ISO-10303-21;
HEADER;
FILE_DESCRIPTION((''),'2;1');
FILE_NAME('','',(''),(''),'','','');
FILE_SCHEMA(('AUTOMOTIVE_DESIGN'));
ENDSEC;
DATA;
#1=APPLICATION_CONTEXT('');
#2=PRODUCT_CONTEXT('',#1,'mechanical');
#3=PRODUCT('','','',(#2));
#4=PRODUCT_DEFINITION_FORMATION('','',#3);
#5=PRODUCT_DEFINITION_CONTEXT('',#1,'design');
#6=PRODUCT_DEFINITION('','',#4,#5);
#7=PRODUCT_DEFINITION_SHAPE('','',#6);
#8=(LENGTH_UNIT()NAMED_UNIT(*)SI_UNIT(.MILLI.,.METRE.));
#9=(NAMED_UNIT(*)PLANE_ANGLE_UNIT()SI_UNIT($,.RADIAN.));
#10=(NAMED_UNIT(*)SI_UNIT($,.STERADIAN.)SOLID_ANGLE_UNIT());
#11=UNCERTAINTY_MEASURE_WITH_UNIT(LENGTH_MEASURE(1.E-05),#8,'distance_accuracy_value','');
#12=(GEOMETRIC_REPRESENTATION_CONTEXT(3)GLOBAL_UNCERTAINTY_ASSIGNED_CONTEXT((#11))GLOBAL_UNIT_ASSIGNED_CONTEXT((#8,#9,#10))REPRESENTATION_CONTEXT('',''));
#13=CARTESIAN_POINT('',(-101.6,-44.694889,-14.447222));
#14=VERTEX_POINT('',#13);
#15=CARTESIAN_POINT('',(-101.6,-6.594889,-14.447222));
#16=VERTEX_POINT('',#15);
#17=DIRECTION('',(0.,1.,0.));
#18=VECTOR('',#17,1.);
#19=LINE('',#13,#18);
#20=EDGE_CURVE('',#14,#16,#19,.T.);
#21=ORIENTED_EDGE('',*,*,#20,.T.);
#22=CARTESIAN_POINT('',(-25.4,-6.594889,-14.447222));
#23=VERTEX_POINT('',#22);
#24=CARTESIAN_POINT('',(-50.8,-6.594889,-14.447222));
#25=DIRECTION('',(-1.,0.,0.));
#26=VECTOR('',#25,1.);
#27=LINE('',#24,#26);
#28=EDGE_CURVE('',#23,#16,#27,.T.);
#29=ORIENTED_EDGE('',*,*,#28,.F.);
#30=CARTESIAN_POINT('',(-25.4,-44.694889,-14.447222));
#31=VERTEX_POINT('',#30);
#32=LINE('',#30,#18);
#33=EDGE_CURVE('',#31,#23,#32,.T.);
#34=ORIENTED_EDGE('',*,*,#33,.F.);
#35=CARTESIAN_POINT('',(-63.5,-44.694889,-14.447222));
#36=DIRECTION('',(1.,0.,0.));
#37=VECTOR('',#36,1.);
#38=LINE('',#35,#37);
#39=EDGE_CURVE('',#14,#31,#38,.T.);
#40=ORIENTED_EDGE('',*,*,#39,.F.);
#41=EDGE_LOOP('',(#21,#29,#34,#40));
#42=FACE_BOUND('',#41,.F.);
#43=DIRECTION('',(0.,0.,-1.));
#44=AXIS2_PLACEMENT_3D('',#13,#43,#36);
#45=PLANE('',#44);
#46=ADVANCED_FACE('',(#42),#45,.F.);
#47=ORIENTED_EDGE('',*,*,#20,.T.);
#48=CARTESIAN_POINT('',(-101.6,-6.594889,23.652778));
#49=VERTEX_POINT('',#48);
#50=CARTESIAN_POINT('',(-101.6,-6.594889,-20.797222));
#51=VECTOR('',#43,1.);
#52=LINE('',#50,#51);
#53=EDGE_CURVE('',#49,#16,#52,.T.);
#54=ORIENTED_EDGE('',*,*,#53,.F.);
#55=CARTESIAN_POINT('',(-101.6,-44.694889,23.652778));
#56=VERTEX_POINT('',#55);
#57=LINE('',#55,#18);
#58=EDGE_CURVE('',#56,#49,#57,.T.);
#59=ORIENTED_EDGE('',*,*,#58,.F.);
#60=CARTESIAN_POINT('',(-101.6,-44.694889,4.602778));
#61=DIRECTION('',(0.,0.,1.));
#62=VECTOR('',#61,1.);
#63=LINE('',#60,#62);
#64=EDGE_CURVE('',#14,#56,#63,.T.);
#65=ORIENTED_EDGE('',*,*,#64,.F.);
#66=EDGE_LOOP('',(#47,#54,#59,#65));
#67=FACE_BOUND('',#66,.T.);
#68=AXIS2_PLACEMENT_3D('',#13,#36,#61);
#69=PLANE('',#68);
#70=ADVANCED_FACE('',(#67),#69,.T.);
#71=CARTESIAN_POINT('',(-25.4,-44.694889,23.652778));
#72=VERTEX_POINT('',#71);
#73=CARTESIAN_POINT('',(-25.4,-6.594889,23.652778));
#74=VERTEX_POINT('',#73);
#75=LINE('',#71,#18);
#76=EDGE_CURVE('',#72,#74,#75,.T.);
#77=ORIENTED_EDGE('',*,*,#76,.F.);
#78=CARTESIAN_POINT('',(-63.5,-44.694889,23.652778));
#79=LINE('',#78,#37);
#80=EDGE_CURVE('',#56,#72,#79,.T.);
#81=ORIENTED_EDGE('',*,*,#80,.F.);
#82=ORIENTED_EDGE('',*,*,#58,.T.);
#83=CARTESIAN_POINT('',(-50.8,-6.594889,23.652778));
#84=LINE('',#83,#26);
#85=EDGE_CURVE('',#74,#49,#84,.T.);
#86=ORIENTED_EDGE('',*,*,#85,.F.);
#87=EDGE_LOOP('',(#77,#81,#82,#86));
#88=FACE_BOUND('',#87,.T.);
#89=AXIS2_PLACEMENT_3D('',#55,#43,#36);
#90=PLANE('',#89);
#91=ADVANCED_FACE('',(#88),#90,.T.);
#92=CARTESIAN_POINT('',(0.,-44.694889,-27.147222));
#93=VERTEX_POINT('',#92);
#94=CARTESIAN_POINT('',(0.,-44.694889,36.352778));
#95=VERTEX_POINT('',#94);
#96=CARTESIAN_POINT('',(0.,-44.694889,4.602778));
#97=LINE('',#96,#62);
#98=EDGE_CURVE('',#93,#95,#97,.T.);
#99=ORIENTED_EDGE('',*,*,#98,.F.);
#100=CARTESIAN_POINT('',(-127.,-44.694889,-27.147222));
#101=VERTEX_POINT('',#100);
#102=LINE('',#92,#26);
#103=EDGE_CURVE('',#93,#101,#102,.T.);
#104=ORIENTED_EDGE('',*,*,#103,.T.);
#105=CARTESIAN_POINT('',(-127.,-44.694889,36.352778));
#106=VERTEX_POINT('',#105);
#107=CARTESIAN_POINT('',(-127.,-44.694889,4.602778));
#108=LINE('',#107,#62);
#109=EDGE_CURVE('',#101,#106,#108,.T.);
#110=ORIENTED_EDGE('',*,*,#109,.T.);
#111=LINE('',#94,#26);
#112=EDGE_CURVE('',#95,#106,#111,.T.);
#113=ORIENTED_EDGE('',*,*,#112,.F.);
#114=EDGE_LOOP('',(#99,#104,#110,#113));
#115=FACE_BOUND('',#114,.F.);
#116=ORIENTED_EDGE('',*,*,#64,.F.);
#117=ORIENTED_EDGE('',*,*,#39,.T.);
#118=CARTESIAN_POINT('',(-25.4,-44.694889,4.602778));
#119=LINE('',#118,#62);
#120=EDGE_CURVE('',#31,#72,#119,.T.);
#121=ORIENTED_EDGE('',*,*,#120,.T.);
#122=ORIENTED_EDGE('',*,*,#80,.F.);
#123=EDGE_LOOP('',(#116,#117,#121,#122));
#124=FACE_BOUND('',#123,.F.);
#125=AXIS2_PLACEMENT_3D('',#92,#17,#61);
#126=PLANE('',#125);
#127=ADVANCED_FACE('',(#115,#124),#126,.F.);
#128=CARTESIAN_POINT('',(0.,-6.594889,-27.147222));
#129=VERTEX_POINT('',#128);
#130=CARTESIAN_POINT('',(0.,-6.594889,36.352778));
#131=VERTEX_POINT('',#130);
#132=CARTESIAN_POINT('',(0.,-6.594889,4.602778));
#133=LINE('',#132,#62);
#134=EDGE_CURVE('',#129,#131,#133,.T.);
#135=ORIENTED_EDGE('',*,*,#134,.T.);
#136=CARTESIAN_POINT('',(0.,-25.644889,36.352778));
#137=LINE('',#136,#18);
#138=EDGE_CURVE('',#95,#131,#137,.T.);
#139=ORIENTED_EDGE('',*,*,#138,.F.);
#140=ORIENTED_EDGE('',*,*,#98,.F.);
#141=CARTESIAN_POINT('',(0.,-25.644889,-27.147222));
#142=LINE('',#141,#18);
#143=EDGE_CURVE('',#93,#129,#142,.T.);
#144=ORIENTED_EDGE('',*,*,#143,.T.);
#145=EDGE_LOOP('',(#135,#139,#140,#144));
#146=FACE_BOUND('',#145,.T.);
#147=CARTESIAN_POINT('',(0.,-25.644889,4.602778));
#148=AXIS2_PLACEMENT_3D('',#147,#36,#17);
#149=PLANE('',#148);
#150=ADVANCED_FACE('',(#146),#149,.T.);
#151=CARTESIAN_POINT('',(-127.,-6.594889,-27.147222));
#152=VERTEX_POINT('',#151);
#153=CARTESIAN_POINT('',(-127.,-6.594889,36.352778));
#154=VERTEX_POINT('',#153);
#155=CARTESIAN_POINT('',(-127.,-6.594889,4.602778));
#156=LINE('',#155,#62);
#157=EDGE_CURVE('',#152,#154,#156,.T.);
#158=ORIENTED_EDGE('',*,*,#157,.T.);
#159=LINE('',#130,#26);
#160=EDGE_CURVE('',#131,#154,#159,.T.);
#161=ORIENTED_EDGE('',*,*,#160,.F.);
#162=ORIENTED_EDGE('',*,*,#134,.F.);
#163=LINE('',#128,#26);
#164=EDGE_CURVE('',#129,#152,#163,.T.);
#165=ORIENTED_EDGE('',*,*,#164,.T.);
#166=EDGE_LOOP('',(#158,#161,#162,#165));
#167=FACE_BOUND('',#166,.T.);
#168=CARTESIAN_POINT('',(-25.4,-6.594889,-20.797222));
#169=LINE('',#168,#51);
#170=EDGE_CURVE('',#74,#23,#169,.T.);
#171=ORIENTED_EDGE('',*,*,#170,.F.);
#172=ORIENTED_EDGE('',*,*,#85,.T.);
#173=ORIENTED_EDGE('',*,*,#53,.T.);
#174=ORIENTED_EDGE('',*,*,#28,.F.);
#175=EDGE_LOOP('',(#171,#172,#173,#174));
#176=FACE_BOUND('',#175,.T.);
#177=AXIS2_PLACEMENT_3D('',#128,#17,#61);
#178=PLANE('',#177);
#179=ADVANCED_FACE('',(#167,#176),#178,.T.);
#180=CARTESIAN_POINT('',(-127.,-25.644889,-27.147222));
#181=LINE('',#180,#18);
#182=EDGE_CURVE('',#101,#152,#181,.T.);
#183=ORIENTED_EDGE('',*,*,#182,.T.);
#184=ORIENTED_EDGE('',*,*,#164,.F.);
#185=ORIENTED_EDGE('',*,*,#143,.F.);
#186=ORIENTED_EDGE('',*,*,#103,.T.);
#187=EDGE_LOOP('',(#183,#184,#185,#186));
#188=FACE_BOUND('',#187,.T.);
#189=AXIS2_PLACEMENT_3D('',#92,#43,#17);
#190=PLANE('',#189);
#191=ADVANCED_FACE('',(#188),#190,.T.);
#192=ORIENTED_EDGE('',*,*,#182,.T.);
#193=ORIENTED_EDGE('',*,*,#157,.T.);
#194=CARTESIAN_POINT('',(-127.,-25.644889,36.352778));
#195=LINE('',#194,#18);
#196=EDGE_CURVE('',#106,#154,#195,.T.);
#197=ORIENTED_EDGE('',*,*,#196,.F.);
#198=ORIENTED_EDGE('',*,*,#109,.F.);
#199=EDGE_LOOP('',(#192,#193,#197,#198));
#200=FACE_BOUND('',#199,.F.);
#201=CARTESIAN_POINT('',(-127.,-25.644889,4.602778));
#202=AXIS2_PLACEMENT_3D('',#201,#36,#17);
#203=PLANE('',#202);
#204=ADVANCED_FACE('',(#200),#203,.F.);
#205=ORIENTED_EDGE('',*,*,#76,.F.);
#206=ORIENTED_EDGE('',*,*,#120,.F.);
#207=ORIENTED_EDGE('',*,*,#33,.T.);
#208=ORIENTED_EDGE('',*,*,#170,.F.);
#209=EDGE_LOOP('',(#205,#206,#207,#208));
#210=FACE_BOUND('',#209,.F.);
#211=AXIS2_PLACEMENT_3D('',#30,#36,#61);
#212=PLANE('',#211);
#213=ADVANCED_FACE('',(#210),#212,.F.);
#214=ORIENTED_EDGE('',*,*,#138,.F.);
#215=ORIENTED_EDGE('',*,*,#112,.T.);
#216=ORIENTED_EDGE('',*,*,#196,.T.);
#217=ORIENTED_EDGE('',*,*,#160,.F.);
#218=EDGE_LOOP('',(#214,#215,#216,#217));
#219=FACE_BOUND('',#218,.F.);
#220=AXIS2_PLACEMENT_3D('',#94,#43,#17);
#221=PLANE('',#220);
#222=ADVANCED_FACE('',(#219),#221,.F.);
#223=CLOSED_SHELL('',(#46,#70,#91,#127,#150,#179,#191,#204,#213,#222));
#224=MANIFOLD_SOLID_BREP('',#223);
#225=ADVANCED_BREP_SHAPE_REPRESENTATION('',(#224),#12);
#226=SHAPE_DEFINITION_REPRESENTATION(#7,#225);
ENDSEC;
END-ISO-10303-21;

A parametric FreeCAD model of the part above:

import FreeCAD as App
import Part
import Sketcher
from FreeCAD import Vector
Q = App.Units.Quantity

doc = App.newDocument("Part")
body = doc.addObject("PartDesign::Body", "Body")

# Sketch on YZ plane
sketch1 = body.newObject("Sketcher::SketchObject", "Sketch")
sketch1.AttachmentSupport = (doc.getObject("YZ_Plane"), [""])
sketch1.MapMode = "FlatFace"
sketch1.addGeometry(Part.LineSegment(Vector(-45, 36, 0), Vector(-45, -27, 0)), False)
sketch1.addGeometry(Part.LineSegment(Vector(-45, -27, 0), Vector(-7, -27, 0)), False)
sketch1.addGeometry(Part.LineSegment(Vector(-7, -27, 0), Vector(-7, 36, 0)), False)
sketch1.addGeometry(Part.LineSegment(Vector(-7, 36, 0), Vector(-45, 36, 0)), False)
sketch1.addConstraint(Sketcher.Constraint("Coincident", 0, 2, 1, 1))
sketch1.addConstraint(Sketcher.Constraint("Coincident", 1, 2, 2, 1))
sketch1.addConstraint(Sketcher.Constraint("Coincident", 2, 2, 3, 1))
sketch1.addConstraint(Sketcher.Constraint("Coincident", 3, 2, 0, 1))
sketch1.addConstraint(Sketcher.Constraint("Vertical", 0))
sketch1.addConstraint(Sketcher.Constraint("Horizontal", 1))
sketch1.addConstraint(Sketcher.Constraint("Vertical", 2))
sketch1.addConstraint(Sketcher.Constraint("Horizontal", 3))
sketch1.addConstraint(Sketcher.Constraint("DistanceX", 1, 1, 1, 2, Q("1.5 in")))
sketch1.addConstraint(Sketcher.Constraint("DistanceY", 0, 2, 0, 1, Q("2.5 in")))
sketch1.addConstraint(Sketcher.Constraint("DistanceX", 0, 2, -1, 1, Q("44.694889 mm")))
sketch1.addConstraint(Sketcher.Constraint("DistanceY", 0, 2, -1, 1, Q("27.147222 mm")))
pad1 = body.newObject("PartDesign::Pad", "Pad")
pad1.Profile = sketch1
pad1.Length = Q("5 in")
pad1.Reversed = True

# Sketch on XZ plane
sketch2 = body.newObject("Sketcher::SketchObject", "Sketch001")
sketch2.AttachmentSupport = (doc.getObject("XZ_Plane"), [""])
sketch2.MapMode = "FlatFace"
sketch2.AttachmentOffset = App.Placement(Vector(0, 0, 44.694889), App.Rotation())
sketch2.addGeometry(Part.LineSegment(Vector(-102, 24, 0), Vector(-102, -14, 0)), False)
sketch2.addGeometry(Part.LineSegment(Vector(-102, -14, 0), Vector(-25, -14, 0)), False)
sketch2.addGeometry(Part.LineSegment(Vector(-25, -14, 0), Vector(-25, 24, 0)), False)
sketch2.addGeometry(Part.LineSegment(Vector(-25, 24, 0), Vector(-102, 24, 0)), False)
sketch2.addConstraint(Sketcher.Constraint("Coincident", 0, 2, 1, 1))
sketch2.addConstraint(Sketcher.Constraint("Coincident", 1, 2, 2, 1))
sketch2.addConstraint(Sketcher.Constraint("Coincident", 2, 2, 3, 1))
sketch2.addConstraint(Sketcher.Constraint("Coincident", 3, 2, 0, 1))
sketch2.addConstraint(Sketcher.Constraint("Vertical", 0))
sketch2.addConstraint(Sketcher.Constraint("Horizontal", 1))
sketch2.addConstraint(Sketcher.Constraint("Vertical", 2))
sketch2.addConstraint(Sketcher.Constraint("Horizontal", 3))
sketch2.addConstraint(Sketcher.Constraint("DistanceX", 1, 1, 1, 2, Q("3 in")))
sketch2.addConstraint(Sketcher.Constraint("DistanceY", 0, 2, 0, 1, Q("1.5 in")))
sketch2.addConstraint(Sketcher.Constraint("DistanceX", 0, 2, -1, 1, Q("4 in")))
sketch2.addConstraint(Sketcher.Constraint("DistanceY", -1, 1, 2, 2, Q("23.652778 mm")))
pocket1 = body.newObject("PartDesign::Pocket", "Pocket")
pocket1.Profile = sketch2
pocket1.Type = "ThroughAll"

doc.recompute()
